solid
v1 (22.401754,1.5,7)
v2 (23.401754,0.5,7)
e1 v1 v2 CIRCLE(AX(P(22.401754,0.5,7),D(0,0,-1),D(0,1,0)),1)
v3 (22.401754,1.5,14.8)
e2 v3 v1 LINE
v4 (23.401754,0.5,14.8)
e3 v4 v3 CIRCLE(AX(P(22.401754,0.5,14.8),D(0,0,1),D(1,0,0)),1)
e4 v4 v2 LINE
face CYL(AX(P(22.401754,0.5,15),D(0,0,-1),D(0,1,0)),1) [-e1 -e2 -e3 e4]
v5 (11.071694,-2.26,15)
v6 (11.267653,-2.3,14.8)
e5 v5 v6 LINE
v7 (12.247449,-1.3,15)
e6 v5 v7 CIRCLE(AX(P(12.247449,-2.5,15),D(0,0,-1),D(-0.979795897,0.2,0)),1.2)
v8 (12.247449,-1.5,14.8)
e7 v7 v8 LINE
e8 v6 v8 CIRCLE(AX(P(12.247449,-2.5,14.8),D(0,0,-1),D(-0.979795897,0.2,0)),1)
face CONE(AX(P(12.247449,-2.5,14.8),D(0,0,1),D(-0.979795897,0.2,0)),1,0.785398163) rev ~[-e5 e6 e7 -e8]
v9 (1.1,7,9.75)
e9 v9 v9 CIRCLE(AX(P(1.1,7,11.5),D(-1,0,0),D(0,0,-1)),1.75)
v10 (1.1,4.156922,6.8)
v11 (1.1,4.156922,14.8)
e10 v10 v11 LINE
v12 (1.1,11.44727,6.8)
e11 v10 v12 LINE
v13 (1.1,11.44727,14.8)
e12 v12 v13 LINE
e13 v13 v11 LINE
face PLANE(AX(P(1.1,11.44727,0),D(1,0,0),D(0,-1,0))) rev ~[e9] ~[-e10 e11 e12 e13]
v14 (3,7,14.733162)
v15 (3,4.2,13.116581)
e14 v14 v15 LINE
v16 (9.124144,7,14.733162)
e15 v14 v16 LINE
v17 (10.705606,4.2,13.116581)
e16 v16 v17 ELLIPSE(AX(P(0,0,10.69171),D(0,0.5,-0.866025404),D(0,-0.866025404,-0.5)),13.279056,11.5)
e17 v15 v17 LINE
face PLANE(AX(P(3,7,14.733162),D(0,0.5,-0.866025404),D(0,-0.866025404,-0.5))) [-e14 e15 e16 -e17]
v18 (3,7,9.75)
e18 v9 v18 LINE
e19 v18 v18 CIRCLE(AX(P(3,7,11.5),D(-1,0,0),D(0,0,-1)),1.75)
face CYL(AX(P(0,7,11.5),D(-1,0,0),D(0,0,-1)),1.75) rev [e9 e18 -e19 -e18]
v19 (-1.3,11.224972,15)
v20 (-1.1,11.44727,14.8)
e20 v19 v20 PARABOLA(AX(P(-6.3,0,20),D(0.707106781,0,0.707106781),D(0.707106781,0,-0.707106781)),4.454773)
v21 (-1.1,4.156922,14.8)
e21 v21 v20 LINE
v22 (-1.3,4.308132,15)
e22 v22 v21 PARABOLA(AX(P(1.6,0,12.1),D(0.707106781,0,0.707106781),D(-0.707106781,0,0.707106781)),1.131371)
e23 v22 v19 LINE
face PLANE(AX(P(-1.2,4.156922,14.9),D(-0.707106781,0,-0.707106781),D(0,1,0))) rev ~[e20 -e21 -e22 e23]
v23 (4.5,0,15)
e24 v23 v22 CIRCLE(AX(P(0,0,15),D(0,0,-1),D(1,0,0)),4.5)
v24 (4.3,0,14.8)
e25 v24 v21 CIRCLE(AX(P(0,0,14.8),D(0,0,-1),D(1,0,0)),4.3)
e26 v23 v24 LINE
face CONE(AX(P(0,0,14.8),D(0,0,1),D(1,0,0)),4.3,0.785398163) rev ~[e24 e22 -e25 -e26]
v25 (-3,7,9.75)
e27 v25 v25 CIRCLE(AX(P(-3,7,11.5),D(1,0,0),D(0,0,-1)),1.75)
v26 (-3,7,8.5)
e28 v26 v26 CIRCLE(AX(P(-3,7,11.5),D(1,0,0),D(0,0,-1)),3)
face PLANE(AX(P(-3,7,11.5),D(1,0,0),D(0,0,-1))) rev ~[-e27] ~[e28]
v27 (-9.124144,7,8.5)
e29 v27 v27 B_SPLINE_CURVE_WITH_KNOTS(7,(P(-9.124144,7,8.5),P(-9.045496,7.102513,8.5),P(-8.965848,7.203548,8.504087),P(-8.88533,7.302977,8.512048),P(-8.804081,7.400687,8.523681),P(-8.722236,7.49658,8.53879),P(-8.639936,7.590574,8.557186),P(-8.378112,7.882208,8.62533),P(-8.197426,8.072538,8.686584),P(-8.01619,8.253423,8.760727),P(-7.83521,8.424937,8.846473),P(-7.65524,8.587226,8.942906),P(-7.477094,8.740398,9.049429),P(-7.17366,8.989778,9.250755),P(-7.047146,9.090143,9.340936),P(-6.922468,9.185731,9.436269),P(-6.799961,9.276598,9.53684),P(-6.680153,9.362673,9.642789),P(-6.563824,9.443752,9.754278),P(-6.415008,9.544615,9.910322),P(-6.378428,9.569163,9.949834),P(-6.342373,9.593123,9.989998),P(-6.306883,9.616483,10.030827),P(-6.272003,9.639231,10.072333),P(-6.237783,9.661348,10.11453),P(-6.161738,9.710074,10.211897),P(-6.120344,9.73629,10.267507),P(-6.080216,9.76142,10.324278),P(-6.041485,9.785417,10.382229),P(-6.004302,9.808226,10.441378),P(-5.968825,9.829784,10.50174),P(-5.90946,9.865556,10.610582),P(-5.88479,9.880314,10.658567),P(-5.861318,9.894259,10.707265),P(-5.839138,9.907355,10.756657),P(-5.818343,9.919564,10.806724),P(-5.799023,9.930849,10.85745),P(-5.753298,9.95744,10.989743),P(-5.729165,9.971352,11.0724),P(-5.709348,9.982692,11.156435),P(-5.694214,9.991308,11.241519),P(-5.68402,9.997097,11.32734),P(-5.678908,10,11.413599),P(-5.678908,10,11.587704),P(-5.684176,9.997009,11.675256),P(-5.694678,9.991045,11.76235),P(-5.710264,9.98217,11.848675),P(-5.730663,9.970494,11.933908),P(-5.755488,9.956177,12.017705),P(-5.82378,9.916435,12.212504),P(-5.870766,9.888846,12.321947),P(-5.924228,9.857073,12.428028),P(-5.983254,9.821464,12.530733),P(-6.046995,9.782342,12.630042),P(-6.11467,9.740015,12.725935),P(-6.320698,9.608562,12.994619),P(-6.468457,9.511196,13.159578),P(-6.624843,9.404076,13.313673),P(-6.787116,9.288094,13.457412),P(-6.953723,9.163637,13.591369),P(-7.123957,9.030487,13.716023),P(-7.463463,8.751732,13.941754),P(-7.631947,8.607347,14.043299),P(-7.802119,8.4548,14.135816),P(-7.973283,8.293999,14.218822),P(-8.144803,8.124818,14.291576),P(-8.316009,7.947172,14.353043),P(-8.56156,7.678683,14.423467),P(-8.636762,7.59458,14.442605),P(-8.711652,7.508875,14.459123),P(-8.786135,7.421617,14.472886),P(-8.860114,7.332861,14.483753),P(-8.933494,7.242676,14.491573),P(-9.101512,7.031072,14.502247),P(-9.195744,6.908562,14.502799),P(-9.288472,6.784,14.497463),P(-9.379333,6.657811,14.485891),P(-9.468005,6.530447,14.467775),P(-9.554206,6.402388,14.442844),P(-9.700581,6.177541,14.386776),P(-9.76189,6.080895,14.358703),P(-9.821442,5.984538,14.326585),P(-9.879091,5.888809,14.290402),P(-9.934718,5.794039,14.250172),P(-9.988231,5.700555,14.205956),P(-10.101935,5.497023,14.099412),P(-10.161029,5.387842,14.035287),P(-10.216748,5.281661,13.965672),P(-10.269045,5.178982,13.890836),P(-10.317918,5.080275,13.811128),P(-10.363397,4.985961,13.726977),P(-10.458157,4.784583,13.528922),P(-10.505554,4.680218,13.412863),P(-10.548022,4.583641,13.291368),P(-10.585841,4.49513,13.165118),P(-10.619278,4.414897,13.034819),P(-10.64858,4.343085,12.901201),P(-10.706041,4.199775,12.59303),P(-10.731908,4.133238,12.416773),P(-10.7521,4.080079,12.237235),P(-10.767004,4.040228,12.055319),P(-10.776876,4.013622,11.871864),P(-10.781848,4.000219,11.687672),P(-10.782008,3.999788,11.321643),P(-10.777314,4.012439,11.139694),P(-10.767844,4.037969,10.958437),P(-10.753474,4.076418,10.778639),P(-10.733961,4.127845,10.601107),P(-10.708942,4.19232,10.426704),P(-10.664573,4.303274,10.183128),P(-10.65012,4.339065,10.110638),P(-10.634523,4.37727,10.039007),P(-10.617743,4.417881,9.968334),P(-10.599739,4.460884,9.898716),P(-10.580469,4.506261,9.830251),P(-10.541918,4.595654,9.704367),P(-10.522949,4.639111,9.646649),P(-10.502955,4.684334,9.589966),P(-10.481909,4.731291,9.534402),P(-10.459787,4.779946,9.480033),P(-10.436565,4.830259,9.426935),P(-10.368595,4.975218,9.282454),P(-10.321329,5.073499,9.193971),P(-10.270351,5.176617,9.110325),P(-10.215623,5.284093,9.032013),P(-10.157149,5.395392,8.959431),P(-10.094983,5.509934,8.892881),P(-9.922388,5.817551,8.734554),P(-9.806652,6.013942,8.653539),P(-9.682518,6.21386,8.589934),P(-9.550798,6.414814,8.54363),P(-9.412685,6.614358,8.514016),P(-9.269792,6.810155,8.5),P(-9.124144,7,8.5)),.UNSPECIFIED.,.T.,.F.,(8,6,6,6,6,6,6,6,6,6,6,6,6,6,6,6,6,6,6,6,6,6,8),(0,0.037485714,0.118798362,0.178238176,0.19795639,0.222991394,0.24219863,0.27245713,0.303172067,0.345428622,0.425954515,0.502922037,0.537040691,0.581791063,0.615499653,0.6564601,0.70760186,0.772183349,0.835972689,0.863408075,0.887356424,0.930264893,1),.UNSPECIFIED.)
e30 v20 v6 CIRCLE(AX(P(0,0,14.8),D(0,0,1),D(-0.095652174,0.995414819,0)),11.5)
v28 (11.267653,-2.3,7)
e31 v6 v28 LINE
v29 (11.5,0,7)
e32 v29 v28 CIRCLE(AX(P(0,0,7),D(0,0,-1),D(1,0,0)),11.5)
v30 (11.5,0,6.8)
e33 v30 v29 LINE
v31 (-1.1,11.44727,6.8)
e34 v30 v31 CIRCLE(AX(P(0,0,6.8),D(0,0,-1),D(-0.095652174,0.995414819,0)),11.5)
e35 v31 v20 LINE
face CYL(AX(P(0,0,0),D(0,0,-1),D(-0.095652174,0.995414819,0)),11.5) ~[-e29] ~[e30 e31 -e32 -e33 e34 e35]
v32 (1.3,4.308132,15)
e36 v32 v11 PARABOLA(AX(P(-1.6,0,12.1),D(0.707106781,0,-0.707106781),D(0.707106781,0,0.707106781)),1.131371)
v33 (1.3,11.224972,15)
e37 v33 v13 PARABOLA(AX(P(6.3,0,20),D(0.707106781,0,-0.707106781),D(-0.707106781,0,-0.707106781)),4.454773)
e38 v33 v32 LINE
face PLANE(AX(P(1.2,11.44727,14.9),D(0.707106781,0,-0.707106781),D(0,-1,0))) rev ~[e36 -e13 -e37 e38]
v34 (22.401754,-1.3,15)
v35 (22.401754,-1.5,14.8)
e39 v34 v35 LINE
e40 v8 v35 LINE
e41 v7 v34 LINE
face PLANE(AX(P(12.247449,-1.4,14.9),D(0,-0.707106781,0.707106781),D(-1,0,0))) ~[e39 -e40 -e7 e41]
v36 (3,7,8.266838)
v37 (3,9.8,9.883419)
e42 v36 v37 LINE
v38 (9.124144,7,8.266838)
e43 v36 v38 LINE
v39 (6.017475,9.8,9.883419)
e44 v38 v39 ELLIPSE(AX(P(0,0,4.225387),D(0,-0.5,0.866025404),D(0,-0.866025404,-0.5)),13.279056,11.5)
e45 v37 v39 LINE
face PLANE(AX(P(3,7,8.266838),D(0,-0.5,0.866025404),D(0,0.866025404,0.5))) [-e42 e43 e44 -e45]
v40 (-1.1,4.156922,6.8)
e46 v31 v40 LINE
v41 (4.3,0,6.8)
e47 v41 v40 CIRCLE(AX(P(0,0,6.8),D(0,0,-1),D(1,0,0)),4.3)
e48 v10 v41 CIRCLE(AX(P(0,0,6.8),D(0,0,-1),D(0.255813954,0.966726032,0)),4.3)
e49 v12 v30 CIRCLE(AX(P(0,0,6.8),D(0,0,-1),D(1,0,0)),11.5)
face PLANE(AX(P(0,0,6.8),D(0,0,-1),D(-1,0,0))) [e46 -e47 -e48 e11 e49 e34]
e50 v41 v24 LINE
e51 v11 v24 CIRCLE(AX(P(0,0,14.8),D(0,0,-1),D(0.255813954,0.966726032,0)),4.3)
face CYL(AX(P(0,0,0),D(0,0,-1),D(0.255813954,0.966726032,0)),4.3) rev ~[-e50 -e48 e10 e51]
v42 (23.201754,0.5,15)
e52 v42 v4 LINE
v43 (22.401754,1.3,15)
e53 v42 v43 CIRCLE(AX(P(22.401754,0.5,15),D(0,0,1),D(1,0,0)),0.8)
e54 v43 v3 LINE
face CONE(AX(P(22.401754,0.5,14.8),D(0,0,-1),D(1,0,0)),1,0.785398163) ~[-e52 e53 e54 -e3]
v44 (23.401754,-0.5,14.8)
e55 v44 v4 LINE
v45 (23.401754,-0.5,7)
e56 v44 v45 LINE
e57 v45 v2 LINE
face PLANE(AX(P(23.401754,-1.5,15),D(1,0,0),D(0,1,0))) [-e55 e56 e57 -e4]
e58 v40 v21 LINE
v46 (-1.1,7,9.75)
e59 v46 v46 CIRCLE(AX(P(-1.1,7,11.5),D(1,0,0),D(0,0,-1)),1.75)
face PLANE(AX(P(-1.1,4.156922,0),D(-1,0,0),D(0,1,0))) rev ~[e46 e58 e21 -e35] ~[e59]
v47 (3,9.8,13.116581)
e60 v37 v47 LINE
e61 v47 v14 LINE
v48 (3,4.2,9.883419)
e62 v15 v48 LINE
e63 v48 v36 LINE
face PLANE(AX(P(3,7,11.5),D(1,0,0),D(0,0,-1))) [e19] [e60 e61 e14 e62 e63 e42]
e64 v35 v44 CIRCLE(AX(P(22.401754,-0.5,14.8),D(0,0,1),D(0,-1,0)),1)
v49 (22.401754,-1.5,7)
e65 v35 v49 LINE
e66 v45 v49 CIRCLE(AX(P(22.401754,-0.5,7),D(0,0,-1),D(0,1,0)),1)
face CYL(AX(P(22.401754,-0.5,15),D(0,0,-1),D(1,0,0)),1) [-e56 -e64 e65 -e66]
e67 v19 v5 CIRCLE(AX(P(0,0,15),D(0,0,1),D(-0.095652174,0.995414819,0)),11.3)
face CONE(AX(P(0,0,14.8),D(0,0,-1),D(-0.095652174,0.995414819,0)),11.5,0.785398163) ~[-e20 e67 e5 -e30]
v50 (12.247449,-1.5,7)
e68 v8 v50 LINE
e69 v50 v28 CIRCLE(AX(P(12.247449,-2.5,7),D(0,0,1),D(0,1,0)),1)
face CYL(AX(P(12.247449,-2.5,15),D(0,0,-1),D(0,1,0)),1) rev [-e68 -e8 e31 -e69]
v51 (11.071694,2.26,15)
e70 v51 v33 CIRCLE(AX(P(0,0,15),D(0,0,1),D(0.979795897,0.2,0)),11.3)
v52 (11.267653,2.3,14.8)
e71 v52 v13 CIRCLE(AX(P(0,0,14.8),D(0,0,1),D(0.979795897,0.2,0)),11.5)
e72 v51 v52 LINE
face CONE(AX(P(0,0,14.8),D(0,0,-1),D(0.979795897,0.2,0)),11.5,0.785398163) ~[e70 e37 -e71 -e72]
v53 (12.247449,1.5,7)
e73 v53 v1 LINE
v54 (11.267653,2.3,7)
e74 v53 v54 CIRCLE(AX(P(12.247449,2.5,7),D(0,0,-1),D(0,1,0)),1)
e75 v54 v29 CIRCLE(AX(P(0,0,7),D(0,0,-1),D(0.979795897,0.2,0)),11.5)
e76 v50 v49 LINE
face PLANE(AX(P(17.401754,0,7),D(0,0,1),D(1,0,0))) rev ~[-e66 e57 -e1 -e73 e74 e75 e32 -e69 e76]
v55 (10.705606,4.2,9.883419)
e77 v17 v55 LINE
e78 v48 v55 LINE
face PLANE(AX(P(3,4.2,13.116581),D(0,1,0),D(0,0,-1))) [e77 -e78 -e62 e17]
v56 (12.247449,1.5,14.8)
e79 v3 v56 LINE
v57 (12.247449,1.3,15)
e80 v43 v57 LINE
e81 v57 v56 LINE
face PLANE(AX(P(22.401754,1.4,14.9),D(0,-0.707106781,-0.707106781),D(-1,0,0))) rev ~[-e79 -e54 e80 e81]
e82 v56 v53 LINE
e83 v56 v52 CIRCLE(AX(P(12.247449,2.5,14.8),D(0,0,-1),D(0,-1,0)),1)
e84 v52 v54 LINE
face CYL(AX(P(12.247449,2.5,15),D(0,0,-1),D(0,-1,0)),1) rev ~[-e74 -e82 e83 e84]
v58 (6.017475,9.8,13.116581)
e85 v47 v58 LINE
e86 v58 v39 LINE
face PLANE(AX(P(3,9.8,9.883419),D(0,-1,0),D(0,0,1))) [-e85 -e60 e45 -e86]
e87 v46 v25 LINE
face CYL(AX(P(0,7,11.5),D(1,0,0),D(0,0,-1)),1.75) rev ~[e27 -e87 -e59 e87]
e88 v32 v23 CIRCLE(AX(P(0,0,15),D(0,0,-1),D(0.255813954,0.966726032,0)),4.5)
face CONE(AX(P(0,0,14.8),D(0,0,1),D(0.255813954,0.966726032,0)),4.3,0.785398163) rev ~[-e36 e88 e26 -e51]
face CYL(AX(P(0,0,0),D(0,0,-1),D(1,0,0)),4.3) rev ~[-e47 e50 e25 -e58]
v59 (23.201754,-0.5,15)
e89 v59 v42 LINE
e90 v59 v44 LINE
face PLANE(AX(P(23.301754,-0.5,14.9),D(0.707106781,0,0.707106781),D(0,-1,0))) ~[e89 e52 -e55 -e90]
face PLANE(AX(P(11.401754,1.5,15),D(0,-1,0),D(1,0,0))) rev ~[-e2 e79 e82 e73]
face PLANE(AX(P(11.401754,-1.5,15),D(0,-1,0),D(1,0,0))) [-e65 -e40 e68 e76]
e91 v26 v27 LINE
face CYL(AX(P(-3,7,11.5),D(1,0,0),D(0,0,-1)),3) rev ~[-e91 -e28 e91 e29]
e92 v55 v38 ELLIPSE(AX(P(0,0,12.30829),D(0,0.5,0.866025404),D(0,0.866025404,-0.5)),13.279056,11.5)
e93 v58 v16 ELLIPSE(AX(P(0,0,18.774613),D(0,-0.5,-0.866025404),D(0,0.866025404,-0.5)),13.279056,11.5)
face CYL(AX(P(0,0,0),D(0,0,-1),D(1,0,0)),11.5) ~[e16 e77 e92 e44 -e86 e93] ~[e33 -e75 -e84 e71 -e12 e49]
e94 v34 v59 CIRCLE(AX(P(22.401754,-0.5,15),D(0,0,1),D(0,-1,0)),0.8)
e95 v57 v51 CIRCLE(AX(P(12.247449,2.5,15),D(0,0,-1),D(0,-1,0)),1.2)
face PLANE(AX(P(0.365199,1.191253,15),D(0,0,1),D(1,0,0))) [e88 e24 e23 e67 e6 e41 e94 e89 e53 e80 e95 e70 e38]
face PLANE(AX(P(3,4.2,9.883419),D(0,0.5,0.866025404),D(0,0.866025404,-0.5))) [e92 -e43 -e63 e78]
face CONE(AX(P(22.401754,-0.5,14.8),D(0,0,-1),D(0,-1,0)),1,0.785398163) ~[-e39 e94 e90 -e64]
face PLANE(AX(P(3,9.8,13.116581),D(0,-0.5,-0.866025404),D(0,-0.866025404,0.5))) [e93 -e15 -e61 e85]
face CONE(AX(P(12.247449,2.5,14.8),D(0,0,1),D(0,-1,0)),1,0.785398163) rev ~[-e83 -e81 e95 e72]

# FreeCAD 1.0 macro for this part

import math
import FreeCAD as App
import Part
import Sketcher
Q = App.Units.Quantity


def edges_at(feature, points):
    """Names of the edges that pass closest to the given points."""
    edges = feature.Shape.Edges
    near = lambda p: min(range(len(edges)), key=lambda i: edges[i].distToShape(Part.Vertex(*p))[0])
    return sorted({f"Edge{near(p) + 1}" for p in points})


def add_polygon(sketch, points):
    """Adds a closed chain of lines whose ends are joined by coincident constraints."""
    first, n = sketch.GeometryCount, len(points)
    for a, b in zip(points, points[1:] + points[:1]):
        sketch.addGeometry(Part.LineSegment(App.Vector(*a, 0), App.Vector(*b, 0)), False)
    for i in range(n):
        sketch.addConstraint(Sketcher.Constraint("Coincident", first + i, 2, first + (i + 1) % n, 1))

doc = App.newDocument("Part")
body = doc.addObject("PartDesign::Body", "Body")

# Sketch on XY plane
sketch1 = doc.addObject("Sketcher::SketchObject", "Sketch")
body.addObject(sketch1)
sketch1.AttachmentSupport = (doc.XY_Plane, [""])
sketch1.MapMode = "FlatFace"
sketch1.addGeometry([
    Part.LineSegment(App.Vector(1.1, 11.4, 0), App.Vector(1.1, 4.2, 0)),  # 0
    Part.ArcOfCircle(Part.Circle(App.Vector(0, 0, 0), App.Vector(0, 0, 1), 4.3), math.radians(0), math.radians(75)),  # 1
    Part.ArcOfCircle(Part.Circle(App.Vector(0, 0, 0), App.Vector(0, 0, 1), 4.3), math.radians(105), math.radians(360)),  # 2
    Part.LineSegment(App.Vector(-1.1, 4.2, 0), App.Vector(-1.1, 11.4, 0)),  # 3
    Part.ArcOfCircle(Part.Circle(App.Vector(0, 0, 0), App.Vector(0, 0, 1), 11.5), math.radians(95), math.radians(360)),  # 4
    Part.ArcOfCircle(Part.Circle(App.Vector(0, 0, 0), App.Vector(0, 0, 1), 11.5), math.radians(0), math.radians(85)),  # 5
], False)
sketch1.addConstraint([
    Sketcher.Constraint("Coincident", 0, 2, 1, 2),
    Sketcher.Constraint("Tangent", 1, 1, 2, 2),
    Sketcher.Constraint("Coincident", 2, 1, 3, 1),
    Sketcher.Constraint("Coincident", 3, 2, 4, 1),
    Sketcher.Constraint("Tangent", 4, 2, 5, 1),
    Sketcher.Constraint("Coincident", 5, 2, 0, 1),
    Sketcher.Constraint("Vertical", 0),
    Sketcher.Constraint("Vertical", 3),
    Sketcher.Constraint("Coincident", 1, 3, -1, 1),
    Sketcher.Constraint("Coincident", 4, 3, -1, 1),
    Sketcher.Constraint("Equal", 1, 2),
    Sketcher.Constraint("Equal", 4, 5),
    Sketcher.Constraint("PointOnObject", 1, 1, -1),
    Sketcher.Constraint("PointOnObject", 4, 2, -1),
    Sketcher.Constraint("Horizontal", 0, 2, 2, 1),
    Sketcher.Constraint("Radius", 1, 4.3),
    Sketcher.Constraint("Radius", 4, 11.5),
    Sketcher.Constraint("DistanceX", -1, 1, 0, 2, 1.1),
])
pad1 = doc.addObject("PartDesign::Pad", "Pad")
body.addObject(pad1)
pad1.Profile = sketch1
pad1.Length = 15

# Sketch on YZ plane
sketch2 = doc.addObject("Sketcher::SketchObject", "Sketch001")
body.addObject(sketch2)
sketch2.AttachmentSupport = (doc.YZ_Plane, [""])
sketch2.MapMode = "FlatFace"
sketch2.AttachmentOffset = App.Placement(App.Vector(0, 0, -3), App.Rotation())
sketch2.addGeometry([
    Part.Circle(App.Vector(7, 11.5, 0), App.Vector(0, 0, 1), 3),
    Part.Circle(App.Vector(7, 11.5, 0), App.Vector(0, 0, 1), 1.8),
    Part.Circle(App.Vector(7, 3.5, 0), App.Vector(0, 0, 1), 3),
    Part.Circle(App.Vector(7, 3.5, 0), App.Vector(0, 0, 1), 1.8),
], False)
sketch2.addConstraint([
    Sketcher.Constraint("Coincident", 1, 3, 0, 3),
    Sketcher.Constraint("Coincident", 3, 3, 2, 3),
    Sketcher.Constraint("Equal", 0, 2),
    Sketcher.Constraint("Equal", 1, 3),
    Sketcher.Constraint("Vertical", 1, 3, 2, 3),
    Sketcher.Constraint("Diameter", 0, 6.0),
    Sketcher.Constraint("Diameter", 1, 3.5),
    Sketcher.Constraint("DistanceX", -1, 1, 0, 3, 7.0),
    Sketcher.Constraint("DistanceY", 2, 3, 0, 3, 8.0),
    Sketcher.Constraint("DistanceY", -1, 1, 0, 3, 11.5),
])
pocket1 = doc.addObject("PartDesign::Pocket", "Pocket")
body.addObject(pocket1)
pocket1.Profile = sketch2
pocket1.Length = 15

# Sketch on YZ plane
sketch3 = doc.addObject("Sketcher::SketchObject", "Sketch002")
body.addObject(sketch3)
sketch3.AttachmentSupport = (doc.YZ_Plane, [""])
sketch3.MapMode = "FlatFace"
sketch3.addGeometry([
    Part.Circle(App.Vector(7, 11.5, 0), App.Vector(0, 0, 1), 1.8),
    Part.Circle(App.Vector(7, 3.5, 0), App.Vector(0, 0, 1), 1.8),
], False)
sketch3.addConstraint([
    Sketcher.Constraint("Equal", 0, 1),
    Sketcher.Constraint("Vertical", 0, 3, 1, 3),
    Sketcher.Constraint("Diameter", 0, 3.5),
    Sketcher.Constraint("DistanceX", -1, 1, 0, 3, 7.0),
    Sketcher.Constraint("DistanceY", 1, 3, 0, 3, 8.0),
    Sketcher.Constraint("DistanceY", -1, 1, 0, 3, 11.5),
])
pocket2 = doc.addObject("PartDesign::Pocket", "Pocket001")
body.addObject(pocket2)
pocket2.Profile = sketch3
pocket2.Type = "ThroughAll"
pocket2.Midplane = True

# Sketch on YZ plane
sketch4 = doc.addObject("Sketcher::SketchObject", "Sketch003")
body.addObject(sketch4)
sketch4.AttachmentSupport = (doc.YZ_Plane, [""])
sketch4.MapMode = "FlatFace"
sketch4.AttachmentOffset = App.Placement(App.Vector(0, 0, 3), App.Rotation())
add_polygon(sketch4, [(9.8, 9.9), (9.8, 13.1), (7, 14.7), (4.2, 13.1), (4.2, 9.9), (7, 8.3)])  # lines 0-5
add_polygon(sketch4, [(9.8, 1.9), (9.8, 5.1), (7, 6.7), (4.2, 5.1), (4.2, 1.9), (7, 0.3)])  # lines 6-11
sketch4.addConstraint([
    Sketcher.Constraint("Vertical", 0),
    Sketcher.Constraint("Vertical", 3),
    Sketcher.Constraint("Vertical", 6),
    Sketcher.Constraint("Vertical", 9),
    Sketcher.Constraint("Parallel", 1, 4),
    Sketcher.Constraint("Parallel", 2, 5),
    Sketcher.Constraint("Parallel", 4, 7),
    Sketcher.Constraint("Parallel", 5, 8),
    Sketcher.Constraint("Parallel", 7, 10),
    Sketcher.Constraint("Parallel", 8, 11),
    Sketcher.Constraint("Horizontal", 0, 2, 2, 2),
    Sketcher.Constraint("Horizontal", 3, 2, 5, 2),
    Sketcher.Constraint("Horizontal", 6, 2, 8, 2),
    Sketcher.Constraint("Horizontal", 9, 2, 11, 2),
    Sketcher.Constraint("Vertical", 1, 2, 4, 2),
    Sketcher.Constraint("Vertical", 5, 2, 6, 2),
    Sketcher.Constraint("Vertical", 4, 2, 7, 2),
    Sketcher.Constraint("Equal", 3, 6),
    Sketcher.Constraint("Angle", 1, Q("150 deg")),
    Sketcher.Constraint("DistanceX", -1, 1, 1, 2, 7.0),
    Sketcher.Constraint("DistanceY", 6, 2, 0, 2, 8.0),
    Sketcher.Constraint("DistanceX", -1, 1, 0, 2, 9.8),
    Sketcher.Constraint("DistanceY", 0, 1, 0, 2, 3.233162),
    Sketcher.Constraint("DistanceY", -1, 1, 0, 2, 13.116581),
])
pocket3 = doc.addObject("PartDesign::Pocket", "Pocket002")
body.addObject(pocket3)
pocket3.Profile = sketch4
pocket3.Length = 15
pocket3.Reversed = True

# Sketch on XY plane
sketch5 = doc.addObject("Sketcher::SketchObject", "Sketch004")
body.addObject(sketch5)
sketch5.AttachmentSupport = (doc.XY_Plane, [""])
sketch5.MapMode = "FlatFace"
sketch5.addGeometry(Part.Circle(App.Vector(0, 0, 0), App.Vector(0, 0, 1), 14), False)
sketch5.addConstraint([
    Sketcher.Constraint("Coincident", 0, 3, -1, 1),
    Sketcher.Constraint("Diameter", 0, 28.0),
])
pocket4 = doc.addObject("PartDesign::Pocket", "Pocket003")
body.addObject(pocket4)
pocket4.Profile = sketch5
pocket4.Length = 6.8
pocket4.Reversed = True

# Sketch on XY plane
sketch6 = doc.addObject("Sketcher::SketchObject", "Sketch005")
body.addObject(sketch6)
sketch6.AttachmentSupport = (doc.XY_Plane, [""])
sketch6.MapMode = "FlatFace"
sketch6.AttachmentOffset = App.Placement(App.Vector(0, 0, 15), App.Rotation())
add_polygon(sketch6, [(11.4, 1.5), (11.4, -1.5), (23.4, -1.5), (23.4, 1.5)])  # lines 0-3
sketch6.addConstraint([
    Sketcher.Constraint("Vertical", 0),
    Sketcher.Constraint("Horizontal", 1),
    Sketcher.Constraint("Vertical", 2),
    Sketcher.Constraint("Horizontal", 3),
    Sketcher.Constraint("DistanceX", 1, 1, 1, 2, 12.0),
    Sketcher.Constraint("DistanceY", 0, 2, 0, 1, 3.0),
    Sketcher.Constraint("DistanceY", 0, 2, -1, 1, 1.5),
    Sketcher.Constraint("DistanceX", -1, 1, 0, 2, 11.401754),
])
pad2 = doc.addObject("PartDesign::Pad", "Pad001")
body.addObject(pad2)
pad2.Profile = sketch6
pad2.Length = 8
pad2.Reversed = True
doc.recompute()

fillet = doc.addObject("PartDesign::Fillet", "Fillet")
body.addObject(fillet)
fillet.Base = (pad2, edges_at(pad2, [
    (11.402, -1.5, 11),
    (11.402, 1.5, 11),
    (23.402, 1.5, 11),
    (23.402, -1.5, 11),
]))
fillet.Radius = 1
doc.recompute()

chamfer = doc.addObject("PartDesign::Chamfer", "Chamfer")
body.addObject(chamfer)
chamfer.Base = (fillet, edges_at(fillet, [
    (-8.549, -7.691, 15),
    (23.402, 0, 15),
    (17.325, -1.5, 15),
    (17.325, 1.5, 15),
    (7.691, 8.549, 15),
    (23.109, -1.207, 15),
    (23.109, 1.207, 15),
    (11.615, -1.725, 15),
    (11.615, 1.725, 15),
    (1.1, 7.802, 15),
    (-2.623, -3.407, 15),
    (-1.1, 7.802, 15),
]))
chamfer.Size = 0.2

doc.recompute()
